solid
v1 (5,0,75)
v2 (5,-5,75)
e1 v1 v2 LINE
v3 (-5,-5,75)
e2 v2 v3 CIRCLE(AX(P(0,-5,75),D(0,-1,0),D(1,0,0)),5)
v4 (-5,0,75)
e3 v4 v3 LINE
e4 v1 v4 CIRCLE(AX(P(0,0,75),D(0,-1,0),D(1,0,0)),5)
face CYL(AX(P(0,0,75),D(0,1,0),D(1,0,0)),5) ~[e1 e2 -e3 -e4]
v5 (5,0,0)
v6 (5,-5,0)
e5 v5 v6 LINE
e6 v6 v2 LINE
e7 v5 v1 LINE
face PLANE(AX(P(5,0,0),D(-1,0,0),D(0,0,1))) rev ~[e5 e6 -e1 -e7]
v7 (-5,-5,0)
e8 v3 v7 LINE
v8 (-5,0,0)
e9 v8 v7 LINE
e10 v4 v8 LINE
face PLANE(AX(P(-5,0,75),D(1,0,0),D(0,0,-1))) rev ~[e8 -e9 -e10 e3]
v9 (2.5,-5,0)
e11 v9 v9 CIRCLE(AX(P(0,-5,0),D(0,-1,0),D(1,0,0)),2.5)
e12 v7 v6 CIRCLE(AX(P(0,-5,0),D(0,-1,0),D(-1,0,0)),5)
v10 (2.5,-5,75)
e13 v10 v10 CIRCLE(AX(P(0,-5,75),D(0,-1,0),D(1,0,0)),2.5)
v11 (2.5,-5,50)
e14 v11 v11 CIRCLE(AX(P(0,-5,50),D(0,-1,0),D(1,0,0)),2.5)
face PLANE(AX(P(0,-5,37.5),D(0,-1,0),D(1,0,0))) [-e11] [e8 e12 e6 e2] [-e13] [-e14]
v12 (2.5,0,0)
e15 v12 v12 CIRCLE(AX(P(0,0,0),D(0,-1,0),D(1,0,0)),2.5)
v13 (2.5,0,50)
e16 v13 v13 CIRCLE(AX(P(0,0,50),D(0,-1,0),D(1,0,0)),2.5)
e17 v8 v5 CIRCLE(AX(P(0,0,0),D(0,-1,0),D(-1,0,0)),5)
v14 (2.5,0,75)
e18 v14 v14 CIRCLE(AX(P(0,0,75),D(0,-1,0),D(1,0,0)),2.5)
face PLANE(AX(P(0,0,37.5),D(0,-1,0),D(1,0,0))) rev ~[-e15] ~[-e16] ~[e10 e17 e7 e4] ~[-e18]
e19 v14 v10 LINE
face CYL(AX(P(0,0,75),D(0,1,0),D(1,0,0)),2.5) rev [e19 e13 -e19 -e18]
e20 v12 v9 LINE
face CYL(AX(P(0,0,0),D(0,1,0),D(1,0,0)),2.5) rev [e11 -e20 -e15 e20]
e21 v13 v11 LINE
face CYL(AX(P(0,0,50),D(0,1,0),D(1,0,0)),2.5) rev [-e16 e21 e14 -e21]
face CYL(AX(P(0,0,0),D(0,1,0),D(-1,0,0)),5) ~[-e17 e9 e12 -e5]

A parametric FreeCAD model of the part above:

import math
import FreeCAD as App
import Part
import Sketcher

doc = App.newDocument("Part")
body = doc.addObject("PartDesign::Body", "Body")

sketch1 = body.newObject("Sketcher::SketchObject", "Sketch")
sketch1.AttachmentSupport = (doc.getObject("XZ_Plane"), [""])
sketch1.MapMode = "FlatFace"
sketch1.addGeometry([
    Part.LineSegment(App.Vector(-5, 75, 0), App.Vector(-5, 0, 0)),
    Part.ArcOfCircle(Part.Circle(App.Vector(0, 0, 0), App.Vector(0, 0, 1), 5), math.radians(180), math.radians(360)),
    Part.LineSegment(App.Vector(5, 0, 0), App.Vector(5, 75, 0)),
    Part.ArcOfCircle(Part.Circle(App.Vector(0, 75, 0), App.Vector(0, 0, 1), 5), math.radians(0), math.radians(180)),
    Part.Circle(App.Vector(0, 0, 0), App.Vector(0, 0, 1), 2.5),
    Part.Circle(App.Vector(0, 50, 0), App.Vector(0, 0, 1), 2.5),
    Part.Circle(App.Vector(0, 75, 0), App.Vector(0, 0, 1), 2.5),
], False)
sketch1.addConstraint([
    Sketcher.Constraint("Tangent", 0, 2, 1, 1),
    Sketcher.Constraint("Tangent", 1, 2, 2, 1),
    Sketcher.Constraint("Tangent", 2, 2, 3, 1),
    Sketcher.Constraint("Tangent", 3, 2, 0, 1),
    Sketcher.Constraint("Vertical", 0),
    Sketcher.Constraint("Vertical", 2),
    Sketcher.Constraint("Coincident", 1, 3, -1, 1),
    Sketcher.Constraint("Coincident", 4, 3, -1, 1),
    Sketcher.Constraint("Coincident", 6, 3, 3, 3),
    Sketcher.Constraint("Equal", 4, 5),
    Sketcher.Constraint("Equal", 5, 6),
    Sketcher.Constraint("PointOnObject", 5, 3, -2),
    Sketcher.Constraint("Diameter", 4, 5.0),
    Sketcher.Constraint("Radius", 1, 5.0),
    Sketcher.Constraint("DistanceY", 0, 2, 0, 1, 75.0),
    Sketcher.Constraint("DistanceY", -1, 1, 5, 3, 50.0),
])
pad1 = body.newObject("PartDesign::Pad", "Pad")
pad1.Profile = sketch1
pad1.Length = 5

doc.recompute()
